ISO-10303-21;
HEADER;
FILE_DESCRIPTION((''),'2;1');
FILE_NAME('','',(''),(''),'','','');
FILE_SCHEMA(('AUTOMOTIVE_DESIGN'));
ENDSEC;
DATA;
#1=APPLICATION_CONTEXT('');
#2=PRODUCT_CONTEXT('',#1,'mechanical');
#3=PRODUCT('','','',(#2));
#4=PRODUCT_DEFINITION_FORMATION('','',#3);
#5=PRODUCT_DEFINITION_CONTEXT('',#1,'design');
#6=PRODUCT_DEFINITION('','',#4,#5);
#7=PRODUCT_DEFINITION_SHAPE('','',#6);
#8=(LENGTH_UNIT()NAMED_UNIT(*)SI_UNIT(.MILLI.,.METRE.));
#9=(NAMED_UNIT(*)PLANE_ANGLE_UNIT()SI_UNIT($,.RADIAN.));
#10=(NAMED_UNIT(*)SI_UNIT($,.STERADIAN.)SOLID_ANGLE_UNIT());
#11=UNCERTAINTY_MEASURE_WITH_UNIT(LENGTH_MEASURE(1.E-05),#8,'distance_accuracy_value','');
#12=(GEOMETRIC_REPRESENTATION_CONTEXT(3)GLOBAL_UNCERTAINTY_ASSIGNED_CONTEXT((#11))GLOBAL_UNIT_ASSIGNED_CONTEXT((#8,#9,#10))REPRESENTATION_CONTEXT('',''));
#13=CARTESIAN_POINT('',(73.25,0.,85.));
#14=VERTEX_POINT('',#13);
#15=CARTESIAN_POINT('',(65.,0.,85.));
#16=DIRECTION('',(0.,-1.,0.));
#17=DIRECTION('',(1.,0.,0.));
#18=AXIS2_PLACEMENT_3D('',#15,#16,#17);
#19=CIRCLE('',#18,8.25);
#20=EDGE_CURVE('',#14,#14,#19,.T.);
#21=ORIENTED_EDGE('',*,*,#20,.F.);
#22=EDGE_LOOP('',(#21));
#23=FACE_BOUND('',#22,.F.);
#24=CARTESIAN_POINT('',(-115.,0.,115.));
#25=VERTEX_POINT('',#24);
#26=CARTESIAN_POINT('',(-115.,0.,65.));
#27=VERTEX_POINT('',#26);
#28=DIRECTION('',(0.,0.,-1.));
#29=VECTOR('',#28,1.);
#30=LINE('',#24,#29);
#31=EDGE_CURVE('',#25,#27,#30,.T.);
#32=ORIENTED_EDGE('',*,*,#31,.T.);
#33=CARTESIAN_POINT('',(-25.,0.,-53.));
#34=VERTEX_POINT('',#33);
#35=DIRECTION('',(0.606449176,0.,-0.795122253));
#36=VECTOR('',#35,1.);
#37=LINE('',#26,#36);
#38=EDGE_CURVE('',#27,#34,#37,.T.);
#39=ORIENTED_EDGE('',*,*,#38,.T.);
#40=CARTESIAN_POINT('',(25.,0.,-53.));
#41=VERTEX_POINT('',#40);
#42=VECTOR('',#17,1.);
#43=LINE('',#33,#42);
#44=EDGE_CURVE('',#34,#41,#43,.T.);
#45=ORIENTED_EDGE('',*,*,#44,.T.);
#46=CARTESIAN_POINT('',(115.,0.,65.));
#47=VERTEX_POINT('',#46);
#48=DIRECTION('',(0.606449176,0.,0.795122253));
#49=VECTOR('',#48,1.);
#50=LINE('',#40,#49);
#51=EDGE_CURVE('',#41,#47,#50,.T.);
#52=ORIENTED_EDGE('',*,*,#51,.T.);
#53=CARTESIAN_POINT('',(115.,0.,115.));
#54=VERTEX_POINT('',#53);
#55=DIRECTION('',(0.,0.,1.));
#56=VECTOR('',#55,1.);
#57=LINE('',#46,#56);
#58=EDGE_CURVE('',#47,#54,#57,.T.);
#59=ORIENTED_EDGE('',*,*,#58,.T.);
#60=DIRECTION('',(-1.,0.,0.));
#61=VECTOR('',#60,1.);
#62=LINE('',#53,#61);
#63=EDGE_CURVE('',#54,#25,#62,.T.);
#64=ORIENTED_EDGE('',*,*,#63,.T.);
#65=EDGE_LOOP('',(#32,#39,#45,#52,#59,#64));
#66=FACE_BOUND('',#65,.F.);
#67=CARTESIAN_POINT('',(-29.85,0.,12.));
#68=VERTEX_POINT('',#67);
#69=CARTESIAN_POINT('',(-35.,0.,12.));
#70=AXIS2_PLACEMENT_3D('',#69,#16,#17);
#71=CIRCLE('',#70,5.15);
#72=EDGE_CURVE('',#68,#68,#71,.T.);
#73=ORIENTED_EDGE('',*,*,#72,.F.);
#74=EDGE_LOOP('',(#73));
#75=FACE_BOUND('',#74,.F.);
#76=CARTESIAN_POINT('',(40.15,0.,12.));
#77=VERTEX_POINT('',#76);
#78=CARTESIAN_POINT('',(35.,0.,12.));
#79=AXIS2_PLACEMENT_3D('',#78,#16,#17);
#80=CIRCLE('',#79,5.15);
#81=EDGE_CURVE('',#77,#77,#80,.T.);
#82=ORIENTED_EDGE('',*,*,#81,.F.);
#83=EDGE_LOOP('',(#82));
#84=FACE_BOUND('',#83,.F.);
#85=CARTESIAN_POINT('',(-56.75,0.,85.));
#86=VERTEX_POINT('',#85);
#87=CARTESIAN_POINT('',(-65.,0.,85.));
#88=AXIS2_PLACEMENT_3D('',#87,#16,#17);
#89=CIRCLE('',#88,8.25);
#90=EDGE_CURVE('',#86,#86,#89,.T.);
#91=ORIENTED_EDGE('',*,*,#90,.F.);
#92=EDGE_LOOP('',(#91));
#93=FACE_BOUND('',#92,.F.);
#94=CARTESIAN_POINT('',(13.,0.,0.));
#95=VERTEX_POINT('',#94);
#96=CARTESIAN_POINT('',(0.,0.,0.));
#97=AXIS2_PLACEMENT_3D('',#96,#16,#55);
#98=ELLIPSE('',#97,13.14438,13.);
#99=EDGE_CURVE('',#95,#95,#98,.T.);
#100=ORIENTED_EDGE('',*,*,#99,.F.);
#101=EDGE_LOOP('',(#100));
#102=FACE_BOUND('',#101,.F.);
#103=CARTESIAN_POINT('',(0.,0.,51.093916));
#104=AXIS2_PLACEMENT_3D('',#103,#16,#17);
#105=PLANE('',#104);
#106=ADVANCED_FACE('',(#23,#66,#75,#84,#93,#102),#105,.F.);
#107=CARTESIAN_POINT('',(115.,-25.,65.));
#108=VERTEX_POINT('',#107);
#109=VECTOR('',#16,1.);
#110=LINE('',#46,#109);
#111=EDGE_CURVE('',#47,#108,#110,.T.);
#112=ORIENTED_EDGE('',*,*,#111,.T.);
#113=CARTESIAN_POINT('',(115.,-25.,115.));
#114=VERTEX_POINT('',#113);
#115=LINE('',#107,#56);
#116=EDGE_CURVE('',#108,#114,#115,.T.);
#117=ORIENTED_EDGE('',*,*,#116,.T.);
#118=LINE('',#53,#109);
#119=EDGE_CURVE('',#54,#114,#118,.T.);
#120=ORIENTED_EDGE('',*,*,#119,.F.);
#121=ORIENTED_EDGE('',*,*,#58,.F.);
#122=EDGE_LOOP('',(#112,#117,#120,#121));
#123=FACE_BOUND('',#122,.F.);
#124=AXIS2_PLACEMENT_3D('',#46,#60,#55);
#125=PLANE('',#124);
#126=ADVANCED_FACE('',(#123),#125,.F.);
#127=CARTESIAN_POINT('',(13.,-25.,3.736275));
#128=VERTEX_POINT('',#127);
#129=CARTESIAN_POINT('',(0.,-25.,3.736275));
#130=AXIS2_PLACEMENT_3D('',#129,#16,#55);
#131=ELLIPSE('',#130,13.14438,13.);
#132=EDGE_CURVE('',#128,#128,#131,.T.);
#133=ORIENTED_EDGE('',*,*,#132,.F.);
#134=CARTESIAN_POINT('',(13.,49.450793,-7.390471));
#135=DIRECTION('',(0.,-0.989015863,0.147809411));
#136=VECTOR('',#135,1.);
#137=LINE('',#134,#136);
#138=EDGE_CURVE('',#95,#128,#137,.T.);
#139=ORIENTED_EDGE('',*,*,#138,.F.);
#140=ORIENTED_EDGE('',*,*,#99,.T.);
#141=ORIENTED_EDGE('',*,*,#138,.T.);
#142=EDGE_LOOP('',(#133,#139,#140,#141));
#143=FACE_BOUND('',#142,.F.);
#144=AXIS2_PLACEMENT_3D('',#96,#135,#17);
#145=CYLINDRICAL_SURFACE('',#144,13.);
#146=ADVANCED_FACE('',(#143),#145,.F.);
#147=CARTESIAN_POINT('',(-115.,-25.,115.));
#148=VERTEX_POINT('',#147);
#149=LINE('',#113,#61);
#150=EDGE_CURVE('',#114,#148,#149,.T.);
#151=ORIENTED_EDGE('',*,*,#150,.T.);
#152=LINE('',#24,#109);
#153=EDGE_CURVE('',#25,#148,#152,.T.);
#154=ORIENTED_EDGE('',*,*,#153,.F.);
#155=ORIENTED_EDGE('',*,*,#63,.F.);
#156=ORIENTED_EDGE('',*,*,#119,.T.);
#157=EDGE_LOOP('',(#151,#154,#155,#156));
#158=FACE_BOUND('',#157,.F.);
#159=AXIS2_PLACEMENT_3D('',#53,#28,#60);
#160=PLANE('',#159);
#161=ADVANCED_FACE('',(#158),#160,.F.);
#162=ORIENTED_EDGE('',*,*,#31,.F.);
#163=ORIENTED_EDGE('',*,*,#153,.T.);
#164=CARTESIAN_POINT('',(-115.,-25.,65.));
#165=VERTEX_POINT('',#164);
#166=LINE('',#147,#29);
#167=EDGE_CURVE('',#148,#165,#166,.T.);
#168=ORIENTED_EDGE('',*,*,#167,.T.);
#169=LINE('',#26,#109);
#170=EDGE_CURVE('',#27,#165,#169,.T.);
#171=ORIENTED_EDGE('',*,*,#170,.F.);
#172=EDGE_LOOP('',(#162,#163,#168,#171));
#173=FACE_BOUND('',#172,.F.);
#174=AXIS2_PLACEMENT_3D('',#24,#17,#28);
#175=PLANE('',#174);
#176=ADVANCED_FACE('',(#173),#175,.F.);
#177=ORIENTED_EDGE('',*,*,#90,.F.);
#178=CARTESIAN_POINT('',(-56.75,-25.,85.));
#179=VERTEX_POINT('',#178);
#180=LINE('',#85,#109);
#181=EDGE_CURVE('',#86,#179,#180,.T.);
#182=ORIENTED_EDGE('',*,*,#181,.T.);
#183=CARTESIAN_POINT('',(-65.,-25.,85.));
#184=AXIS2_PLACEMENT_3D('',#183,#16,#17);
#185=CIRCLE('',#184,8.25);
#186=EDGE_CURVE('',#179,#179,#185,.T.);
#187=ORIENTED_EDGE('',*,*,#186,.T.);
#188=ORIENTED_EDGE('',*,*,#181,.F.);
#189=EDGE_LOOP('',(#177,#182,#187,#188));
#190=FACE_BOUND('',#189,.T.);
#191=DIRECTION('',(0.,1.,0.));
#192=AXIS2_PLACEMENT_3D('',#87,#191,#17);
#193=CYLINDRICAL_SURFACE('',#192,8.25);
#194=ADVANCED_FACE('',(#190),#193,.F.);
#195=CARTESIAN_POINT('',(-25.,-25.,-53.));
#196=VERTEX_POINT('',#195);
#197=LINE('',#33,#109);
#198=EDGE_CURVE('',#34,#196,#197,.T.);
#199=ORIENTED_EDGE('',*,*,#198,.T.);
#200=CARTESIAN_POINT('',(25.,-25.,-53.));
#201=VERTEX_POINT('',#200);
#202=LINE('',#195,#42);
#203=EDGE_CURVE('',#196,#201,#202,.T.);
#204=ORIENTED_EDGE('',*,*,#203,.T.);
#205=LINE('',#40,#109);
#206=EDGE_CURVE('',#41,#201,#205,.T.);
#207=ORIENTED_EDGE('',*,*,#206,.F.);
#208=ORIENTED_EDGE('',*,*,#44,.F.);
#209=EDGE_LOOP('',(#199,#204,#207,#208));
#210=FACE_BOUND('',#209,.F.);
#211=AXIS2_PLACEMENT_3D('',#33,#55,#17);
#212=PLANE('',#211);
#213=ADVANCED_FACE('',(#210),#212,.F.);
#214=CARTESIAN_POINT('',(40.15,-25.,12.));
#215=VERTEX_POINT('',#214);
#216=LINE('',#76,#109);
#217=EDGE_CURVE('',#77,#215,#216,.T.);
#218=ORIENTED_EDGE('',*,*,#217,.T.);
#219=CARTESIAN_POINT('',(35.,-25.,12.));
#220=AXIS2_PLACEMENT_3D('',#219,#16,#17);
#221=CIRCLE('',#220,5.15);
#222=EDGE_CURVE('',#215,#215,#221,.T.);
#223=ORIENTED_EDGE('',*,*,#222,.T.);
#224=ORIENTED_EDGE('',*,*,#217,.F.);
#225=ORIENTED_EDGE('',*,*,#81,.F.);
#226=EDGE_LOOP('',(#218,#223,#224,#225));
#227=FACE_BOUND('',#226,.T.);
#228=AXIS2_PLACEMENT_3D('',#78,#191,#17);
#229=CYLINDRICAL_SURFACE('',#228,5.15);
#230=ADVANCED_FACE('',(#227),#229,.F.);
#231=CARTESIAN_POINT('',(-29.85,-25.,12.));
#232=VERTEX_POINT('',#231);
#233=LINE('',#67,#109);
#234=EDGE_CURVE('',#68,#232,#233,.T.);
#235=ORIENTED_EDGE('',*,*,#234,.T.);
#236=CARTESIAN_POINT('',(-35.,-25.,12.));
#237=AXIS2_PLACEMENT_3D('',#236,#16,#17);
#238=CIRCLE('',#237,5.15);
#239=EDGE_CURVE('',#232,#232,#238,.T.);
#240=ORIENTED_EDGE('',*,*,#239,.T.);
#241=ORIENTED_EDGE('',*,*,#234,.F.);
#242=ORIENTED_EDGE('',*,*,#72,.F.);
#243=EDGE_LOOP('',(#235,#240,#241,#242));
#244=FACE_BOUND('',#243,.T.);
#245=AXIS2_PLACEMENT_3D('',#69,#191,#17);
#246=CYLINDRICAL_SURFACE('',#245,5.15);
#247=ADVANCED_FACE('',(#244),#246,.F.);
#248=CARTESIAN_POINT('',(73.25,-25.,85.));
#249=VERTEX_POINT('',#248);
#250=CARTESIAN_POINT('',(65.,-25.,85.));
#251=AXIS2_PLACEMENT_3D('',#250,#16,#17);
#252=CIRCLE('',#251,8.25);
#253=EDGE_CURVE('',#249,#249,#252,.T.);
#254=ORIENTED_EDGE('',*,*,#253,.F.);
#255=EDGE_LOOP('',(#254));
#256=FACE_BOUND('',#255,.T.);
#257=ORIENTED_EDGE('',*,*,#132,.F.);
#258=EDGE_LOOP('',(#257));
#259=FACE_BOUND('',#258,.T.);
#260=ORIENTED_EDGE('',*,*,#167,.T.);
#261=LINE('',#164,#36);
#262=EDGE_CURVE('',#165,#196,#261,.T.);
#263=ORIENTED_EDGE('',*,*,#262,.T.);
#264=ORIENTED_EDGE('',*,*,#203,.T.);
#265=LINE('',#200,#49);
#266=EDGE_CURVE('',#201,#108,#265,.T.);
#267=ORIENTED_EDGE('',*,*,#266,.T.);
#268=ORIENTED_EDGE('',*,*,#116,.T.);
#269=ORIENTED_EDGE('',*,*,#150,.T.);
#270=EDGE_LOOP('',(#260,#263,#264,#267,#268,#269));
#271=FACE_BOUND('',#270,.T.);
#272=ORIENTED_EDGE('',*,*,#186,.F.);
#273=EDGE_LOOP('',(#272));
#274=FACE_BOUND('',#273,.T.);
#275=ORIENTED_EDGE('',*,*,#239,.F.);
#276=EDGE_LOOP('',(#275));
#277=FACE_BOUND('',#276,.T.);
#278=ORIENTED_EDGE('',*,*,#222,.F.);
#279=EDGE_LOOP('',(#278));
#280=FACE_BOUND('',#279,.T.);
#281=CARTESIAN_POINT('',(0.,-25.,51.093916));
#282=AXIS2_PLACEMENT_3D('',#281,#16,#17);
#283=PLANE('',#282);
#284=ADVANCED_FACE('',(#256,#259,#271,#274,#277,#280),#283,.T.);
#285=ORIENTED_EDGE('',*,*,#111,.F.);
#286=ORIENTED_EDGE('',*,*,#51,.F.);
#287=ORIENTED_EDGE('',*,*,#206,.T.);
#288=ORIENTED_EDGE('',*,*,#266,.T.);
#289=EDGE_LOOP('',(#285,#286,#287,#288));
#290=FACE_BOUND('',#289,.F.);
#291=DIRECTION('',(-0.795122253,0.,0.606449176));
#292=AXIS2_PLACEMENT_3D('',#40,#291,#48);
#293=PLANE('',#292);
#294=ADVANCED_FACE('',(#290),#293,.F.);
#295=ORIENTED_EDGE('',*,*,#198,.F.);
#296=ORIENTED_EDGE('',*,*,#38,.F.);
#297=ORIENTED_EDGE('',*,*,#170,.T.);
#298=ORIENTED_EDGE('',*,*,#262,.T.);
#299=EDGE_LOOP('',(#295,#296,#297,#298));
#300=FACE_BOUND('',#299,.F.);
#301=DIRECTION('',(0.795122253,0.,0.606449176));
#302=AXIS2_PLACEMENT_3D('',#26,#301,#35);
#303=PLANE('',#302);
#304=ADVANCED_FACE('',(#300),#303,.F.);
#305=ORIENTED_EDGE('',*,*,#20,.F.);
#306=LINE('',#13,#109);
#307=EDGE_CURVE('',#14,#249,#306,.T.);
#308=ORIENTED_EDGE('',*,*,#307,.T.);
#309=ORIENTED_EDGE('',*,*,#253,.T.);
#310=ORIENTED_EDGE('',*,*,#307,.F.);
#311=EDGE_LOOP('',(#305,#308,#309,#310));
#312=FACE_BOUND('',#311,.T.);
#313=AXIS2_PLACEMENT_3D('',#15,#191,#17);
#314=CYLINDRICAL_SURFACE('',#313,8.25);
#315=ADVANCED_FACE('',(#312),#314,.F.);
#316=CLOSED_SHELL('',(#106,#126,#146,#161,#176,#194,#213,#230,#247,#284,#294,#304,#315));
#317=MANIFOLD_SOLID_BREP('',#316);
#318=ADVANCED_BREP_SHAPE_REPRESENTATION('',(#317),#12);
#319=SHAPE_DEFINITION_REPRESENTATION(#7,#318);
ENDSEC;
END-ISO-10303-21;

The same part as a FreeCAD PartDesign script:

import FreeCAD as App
import Part
import Sketcher


def add_polygon(sketch, points):
    """Adds a closed chain of lines whose ends are joined by coincident constraints."""
    first, n = sketch.GeometryCount, len(points)
    for a, b in zip(points, points[1:] + points[:1]):
        sketch.addGeometry(Part.LineSegment(App.Vector(*a, 0), App.Vector(*b, 0)), False)
    for i in range(n):
        sketch.addConstraint(Sketcher.Constraint("Coincident", first + i, 2, first + (i + 1) % n, 1))

doc = App.newDocument("Part")
params = doc.addObject("Spreadsheet::Sheet", "Params")
for row, (alias, value) in enumerate([
    ("sketch1_diameter", "10.3 mm"),
    ("sketch1_diameter2", "16.5 mm"),
    ("sketch1_width", "50 mm"),
    ("sketch1_width2", "230 mm"),
    ("pad1_length", "25 mm"),
    ("sketch2_diameter", "26 mm"),
    ("pocket1_length", "100 mm"),
], start=1):
    params.set(f"A{row}", alias)
    params.set(f"B{row}", "=" + value)
    params.setAlias(f"B{row}", alias)

body = doc.addObject("PartDesign::Body", "Body")

# Sketch on XZ plane
sketch1 = body.newObject("Sketcher::SketchObject", "Sketch")
sketch1.AttachmentSupport = (doc.getObject("XZ_Plane"), [""])
sketch1.MapMode = "FlatFace"
add_polygon(sketch1, [(-115, 65), (-25, -53), (25, -53), (115, 65), (115, 115), (-115, 115)])  # lines 0-5
sketch1.addGeometry(Part.Circle(App.Vector(-35, 12, 0), App.Vector(0, 0, 1), 5), False)  # 6
sketch1.addGeometry(Part.Circle(App.Vector(35, 12, 0), App.Vector(0, 0, 1), 5), False)  # 7
sketch1.addGeometry(Part.Circle(App.Vector(-65, 85, 0), App.Vector(0, 0, 1), 8), False)  # 8
sketch1.addGeometry(Part.Circle(App.Vector(65, 85, 0), App.Vector(0, 0, 1), 8), False)  # 9
sketch1.addConstraint(Sketcher.Constraint("Horizontal", 1))
sketch1.addConstraint(Sketcher.Constraint("Vertical", 3))
sketch1.addConstraint(Sketcher.Constraint("Horizontal", 4))
sketch1.addConstraint(Sketcher.Constraint("Vertical", 5))
sketch1.addConstraint(Sketcher.Constraint("Equal", 6, 7))
sketch1.addConstraint(Sketcher.Constraint("Equal", 8, 9))
sketch1.addConstraint(Sketcher.Constraint("Symmetric", 6, 3, 7, 3, -2))
sketch1.addConstraint(Sketcher.Constraint("Symmetric", 8, 3, 9, 3, -2))
sketch1.addConstraint(Sketcher.Constraint("Symmetric", 2, 2, 5, 2, -2))
sketch1.addConstraint(Sketcher.Constraint("Equal", 1, 3))
sketch1.addConstraint(Sketcher.Constraint("Equal", 0, 2))
sketch1.addConstraint(Sketcher.Constraint("Diameter", 6, 10.3))
sketch1.addConstraint(Sketcher.Constraint("Diameter", 8, 16.5))
sketch1.addConstraint(Sketcher.Constraint("DistanceX", 1, 1, 1, 2, 50.0))
sketch1.addConstraint(Sketcher.Constraint("DistanceX", 4, 2, 4, 1, 230.0))
sketch1.addConstraint(Sketcher.Constraint("DistanceX", 6, 3, -1, 1, 35.0))
sketch1.addConstraint(Sketcher.Constraint("DistanceY", -1, 1, 6, 3, 12.0))
sketch1.addConstraint(Sketcher.Constraint("DistanceX", 8, 3, -1, 1, 65.0))
sketch1.addConstraint(Sketcher.Constraint("DistanceY", -1, 1, 8, 3, 85.0))
sketch1.addConstraint(Sketcher.Constraint("DistanceY", 0, 2, -1, 1, 53.0))
sketch1.addConstraint(Sketcher.Constraint("DistanceY", -1, 1, 2, 2, 65.0))
sketch1.setExpression("Constraints[17]", "Params.sketch1_diameter")
sketch1.setExpression("Constraints[18]", "Params.sketch1_diameter2")
sketch1.setExpression("Constraints[19]", "Params.sketch1_width")
sketch1.setExpression("Constraints[20]", "Params.sketch1_width2")
pad1 = body.newObject("PartDesign::Pad", "Pad")
pad1.Profile = sketch1
pad1.setExpression("Length", "Params.pad1_length")

# Sketch on an angled plane
sketch2 = body.newObject("Sketcher::SketchObject", "Sketch001")
sketch2.Placement = App.Placement(App.Vector(0, 0, 0), App.Rotation(App.Vector(1, 0, 0), App.Vector(0, 0.147809411, 0.989015863), App.Vector(0, -0.989015863, 0.147809411), "ZXY"))
sketch2.addGeometry(Part.Circle(App.Vector(0, 0, 0), App.Vector(0, 0, 1), 13), False)
sketch2.addConstraint(Sketcher.Constraint("Coincident", 0, 3, -1, 1))
sketch2.addConstraint(Sketcher.Constraint("Diameter", 0, 26.0))
sketch2.setExpression("Constraints[1]", "Params.sketch2_diameter")
pocket1 = body.newObject("PartDesign::Pocket", "Pocket")
pocket1.Profile = sketch2
pocket1.setExpression("Length", "Params.pocket1_length")
pocket1.Midplane = True

doc.recompute()
